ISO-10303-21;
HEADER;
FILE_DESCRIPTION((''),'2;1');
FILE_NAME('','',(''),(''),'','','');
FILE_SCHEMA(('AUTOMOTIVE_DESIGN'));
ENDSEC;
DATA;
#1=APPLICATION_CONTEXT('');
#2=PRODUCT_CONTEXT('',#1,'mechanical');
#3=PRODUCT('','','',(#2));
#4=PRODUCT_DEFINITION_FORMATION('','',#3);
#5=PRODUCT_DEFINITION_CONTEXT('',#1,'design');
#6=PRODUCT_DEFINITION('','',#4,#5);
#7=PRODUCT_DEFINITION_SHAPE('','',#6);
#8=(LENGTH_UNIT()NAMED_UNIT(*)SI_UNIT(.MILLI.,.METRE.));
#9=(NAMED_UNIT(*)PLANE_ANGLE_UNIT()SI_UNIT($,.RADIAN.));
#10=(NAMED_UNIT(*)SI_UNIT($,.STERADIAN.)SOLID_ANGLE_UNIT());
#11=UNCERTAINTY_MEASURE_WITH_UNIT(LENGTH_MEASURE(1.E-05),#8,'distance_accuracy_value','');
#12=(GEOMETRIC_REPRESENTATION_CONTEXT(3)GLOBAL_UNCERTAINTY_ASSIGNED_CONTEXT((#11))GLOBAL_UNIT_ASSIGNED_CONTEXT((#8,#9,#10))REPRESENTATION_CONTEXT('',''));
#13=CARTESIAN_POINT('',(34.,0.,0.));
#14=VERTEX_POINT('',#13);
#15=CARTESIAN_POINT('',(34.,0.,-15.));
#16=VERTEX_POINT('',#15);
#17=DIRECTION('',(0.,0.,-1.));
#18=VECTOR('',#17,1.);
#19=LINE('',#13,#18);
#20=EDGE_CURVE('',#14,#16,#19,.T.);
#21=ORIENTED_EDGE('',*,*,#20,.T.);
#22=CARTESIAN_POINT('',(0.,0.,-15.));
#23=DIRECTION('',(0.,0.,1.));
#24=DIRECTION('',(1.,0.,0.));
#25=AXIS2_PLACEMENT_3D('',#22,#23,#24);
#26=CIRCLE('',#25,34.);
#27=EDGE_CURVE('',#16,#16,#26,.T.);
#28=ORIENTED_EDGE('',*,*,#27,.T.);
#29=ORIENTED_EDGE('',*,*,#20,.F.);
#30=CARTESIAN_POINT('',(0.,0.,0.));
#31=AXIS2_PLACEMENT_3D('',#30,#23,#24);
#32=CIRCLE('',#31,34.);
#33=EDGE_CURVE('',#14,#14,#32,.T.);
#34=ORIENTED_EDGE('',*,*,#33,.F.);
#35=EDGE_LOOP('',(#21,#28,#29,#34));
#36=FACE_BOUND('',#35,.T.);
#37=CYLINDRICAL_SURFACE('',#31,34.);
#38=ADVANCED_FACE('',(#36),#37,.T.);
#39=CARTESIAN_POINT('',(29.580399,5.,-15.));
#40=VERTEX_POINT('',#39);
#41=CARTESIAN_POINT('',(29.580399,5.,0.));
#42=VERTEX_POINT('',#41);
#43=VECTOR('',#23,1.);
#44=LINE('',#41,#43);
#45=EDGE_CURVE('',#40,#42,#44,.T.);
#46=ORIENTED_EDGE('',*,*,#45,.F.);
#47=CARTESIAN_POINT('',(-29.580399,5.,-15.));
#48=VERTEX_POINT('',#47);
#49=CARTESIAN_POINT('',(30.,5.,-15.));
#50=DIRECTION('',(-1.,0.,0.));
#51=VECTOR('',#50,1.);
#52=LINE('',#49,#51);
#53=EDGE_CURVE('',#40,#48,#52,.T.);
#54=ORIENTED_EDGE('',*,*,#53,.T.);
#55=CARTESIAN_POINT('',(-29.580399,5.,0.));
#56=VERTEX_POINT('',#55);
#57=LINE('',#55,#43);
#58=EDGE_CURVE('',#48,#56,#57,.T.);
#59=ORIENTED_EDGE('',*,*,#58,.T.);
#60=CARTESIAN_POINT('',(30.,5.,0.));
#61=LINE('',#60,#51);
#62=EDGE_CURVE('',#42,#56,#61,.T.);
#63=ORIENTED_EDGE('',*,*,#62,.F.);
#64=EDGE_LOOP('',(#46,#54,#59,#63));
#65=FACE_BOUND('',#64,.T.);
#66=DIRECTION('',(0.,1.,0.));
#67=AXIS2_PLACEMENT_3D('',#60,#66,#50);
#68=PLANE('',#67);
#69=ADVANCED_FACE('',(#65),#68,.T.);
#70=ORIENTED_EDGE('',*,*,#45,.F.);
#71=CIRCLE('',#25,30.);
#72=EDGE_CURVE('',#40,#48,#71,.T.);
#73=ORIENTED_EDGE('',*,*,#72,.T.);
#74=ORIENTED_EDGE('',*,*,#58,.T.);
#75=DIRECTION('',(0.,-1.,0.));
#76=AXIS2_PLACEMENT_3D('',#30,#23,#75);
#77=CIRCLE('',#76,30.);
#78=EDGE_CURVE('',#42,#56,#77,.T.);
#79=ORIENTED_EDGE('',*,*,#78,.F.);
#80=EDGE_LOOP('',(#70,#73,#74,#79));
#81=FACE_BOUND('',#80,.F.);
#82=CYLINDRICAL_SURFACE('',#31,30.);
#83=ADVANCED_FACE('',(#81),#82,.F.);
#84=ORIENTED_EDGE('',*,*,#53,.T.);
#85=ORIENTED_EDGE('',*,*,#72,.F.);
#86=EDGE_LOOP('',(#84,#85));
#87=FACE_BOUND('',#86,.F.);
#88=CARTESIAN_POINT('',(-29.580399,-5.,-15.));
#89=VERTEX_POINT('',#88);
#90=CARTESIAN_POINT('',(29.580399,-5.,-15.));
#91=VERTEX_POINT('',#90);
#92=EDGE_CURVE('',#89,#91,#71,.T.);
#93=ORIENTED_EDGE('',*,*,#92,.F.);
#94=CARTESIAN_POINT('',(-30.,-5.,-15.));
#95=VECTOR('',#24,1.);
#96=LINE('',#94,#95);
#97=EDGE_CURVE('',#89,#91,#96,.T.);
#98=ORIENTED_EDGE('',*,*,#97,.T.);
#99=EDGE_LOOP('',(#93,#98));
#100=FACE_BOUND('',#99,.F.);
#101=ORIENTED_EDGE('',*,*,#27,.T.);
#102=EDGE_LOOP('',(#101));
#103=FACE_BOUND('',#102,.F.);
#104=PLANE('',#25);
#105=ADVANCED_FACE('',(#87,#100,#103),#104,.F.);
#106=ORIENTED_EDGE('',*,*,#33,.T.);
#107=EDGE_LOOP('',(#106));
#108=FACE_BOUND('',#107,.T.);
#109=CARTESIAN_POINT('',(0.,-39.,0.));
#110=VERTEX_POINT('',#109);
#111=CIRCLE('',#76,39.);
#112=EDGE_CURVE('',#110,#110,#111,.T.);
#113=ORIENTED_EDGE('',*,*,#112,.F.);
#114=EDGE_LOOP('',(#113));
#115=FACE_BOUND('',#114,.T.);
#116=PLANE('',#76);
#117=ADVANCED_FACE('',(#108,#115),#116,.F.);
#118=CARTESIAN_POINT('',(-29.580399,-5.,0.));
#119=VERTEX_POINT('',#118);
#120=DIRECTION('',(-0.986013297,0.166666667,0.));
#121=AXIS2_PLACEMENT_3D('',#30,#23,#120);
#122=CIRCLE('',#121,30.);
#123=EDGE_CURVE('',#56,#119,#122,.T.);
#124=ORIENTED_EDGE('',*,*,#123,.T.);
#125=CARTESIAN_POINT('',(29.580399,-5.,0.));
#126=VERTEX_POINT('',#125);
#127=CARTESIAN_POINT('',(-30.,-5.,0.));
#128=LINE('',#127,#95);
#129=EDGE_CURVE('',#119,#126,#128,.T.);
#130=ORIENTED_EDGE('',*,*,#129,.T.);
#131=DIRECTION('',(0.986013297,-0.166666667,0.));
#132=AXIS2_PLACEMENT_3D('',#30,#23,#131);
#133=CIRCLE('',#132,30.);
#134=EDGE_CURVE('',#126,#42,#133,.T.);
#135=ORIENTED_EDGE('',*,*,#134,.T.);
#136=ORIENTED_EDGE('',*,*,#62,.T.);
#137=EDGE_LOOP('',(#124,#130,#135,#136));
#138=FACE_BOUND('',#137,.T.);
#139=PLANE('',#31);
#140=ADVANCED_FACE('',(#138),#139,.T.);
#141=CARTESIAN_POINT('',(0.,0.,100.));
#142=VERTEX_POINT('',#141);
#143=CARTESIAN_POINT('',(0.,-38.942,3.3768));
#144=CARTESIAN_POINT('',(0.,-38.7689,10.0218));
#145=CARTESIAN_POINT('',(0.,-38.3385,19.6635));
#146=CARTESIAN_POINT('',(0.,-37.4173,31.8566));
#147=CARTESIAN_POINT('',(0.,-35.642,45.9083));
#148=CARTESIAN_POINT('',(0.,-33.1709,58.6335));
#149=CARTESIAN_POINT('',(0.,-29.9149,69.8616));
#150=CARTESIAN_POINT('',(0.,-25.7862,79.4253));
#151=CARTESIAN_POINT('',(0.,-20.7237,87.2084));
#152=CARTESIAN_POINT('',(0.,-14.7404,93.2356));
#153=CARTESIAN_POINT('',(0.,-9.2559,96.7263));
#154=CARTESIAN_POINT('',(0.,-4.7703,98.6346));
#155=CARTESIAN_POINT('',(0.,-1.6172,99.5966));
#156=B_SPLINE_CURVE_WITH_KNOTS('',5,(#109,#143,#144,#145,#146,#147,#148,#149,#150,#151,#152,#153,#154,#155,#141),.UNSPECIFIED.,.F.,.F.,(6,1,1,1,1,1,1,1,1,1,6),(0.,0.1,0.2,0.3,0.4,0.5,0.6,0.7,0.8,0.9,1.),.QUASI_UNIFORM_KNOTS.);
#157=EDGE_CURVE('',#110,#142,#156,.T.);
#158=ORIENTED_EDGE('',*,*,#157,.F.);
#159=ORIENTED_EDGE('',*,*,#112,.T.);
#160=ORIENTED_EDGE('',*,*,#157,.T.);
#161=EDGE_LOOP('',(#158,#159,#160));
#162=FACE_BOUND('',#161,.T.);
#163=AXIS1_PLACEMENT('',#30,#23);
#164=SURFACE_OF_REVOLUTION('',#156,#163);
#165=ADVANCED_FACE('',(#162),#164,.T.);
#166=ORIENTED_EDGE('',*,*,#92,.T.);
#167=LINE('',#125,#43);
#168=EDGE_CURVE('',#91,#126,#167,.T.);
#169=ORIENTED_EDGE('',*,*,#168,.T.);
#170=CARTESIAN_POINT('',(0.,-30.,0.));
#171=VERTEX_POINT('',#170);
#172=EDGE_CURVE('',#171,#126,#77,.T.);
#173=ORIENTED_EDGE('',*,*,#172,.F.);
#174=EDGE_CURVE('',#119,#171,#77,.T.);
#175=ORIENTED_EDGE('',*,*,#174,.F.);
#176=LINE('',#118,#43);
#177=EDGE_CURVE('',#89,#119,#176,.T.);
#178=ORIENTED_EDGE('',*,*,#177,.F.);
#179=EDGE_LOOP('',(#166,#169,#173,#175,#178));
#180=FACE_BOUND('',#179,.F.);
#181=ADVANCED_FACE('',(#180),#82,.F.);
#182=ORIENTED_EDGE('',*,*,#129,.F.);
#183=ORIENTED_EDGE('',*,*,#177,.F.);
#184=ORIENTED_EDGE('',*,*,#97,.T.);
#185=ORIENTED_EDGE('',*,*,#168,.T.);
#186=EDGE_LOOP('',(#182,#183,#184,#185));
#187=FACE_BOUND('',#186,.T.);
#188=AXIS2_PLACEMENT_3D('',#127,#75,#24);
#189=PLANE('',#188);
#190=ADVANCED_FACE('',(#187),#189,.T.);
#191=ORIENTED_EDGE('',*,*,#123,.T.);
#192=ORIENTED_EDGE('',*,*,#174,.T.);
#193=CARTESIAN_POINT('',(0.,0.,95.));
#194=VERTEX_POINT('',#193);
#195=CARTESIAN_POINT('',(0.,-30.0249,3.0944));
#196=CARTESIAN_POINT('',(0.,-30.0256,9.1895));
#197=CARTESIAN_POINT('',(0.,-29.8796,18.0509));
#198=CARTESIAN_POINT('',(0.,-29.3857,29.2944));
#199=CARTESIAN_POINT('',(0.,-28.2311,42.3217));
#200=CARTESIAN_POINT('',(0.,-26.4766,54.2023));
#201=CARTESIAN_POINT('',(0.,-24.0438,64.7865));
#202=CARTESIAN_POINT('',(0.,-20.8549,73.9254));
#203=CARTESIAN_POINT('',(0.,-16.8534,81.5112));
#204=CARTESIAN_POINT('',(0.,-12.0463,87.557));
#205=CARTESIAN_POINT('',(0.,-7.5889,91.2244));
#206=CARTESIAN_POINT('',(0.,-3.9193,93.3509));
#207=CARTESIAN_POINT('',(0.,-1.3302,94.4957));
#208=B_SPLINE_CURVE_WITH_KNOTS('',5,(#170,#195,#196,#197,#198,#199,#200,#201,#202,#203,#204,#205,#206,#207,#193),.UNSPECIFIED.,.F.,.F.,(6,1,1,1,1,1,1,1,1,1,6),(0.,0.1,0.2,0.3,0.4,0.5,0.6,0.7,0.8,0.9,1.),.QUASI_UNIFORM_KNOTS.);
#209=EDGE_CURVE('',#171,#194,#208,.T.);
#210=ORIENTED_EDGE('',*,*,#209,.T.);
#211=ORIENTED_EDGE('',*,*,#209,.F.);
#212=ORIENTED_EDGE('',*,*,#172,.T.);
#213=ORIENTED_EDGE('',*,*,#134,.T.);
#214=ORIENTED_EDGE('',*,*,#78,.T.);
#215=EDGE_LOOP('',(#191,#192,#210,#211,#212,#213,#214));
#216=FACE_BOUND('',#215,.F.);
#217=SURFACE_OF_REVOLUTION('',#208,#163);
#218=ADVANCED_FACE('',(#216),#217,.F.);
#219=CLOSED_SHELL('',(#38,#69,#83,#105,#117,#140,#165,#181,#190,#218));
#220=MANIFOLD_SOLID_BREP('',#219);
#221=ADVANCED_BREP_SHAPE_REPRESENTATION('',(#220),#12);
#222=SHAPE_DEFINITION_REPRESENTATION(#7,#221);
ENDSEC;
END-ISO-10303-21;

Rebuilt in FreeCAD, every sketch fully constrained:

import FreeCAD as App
import Part
import Sketcher

V = App.Vector


def add_polygon(sketch, points):
    """Adds a closed chain of lines whose ends are joined by coincident constraints."""
    first, n = sketch.GeometryCount, len(points)
    for a, b in zip(points, points[1:] + points[:1]):
        sketch.addGeometry(Part.LineSegment(App.Vector(*a, 0), App.Vector(*b, 0)), False)
    for i in range(n):
        sketch.addConstraint(Sketcher.Constraint("Coincident", first + i, 2, first + (i + 1) % n, 1))

doc = App.newDocument("Part")
body = doc.addObject("PartDesign::Body", "Body")

sketch1 = body.newObject("Sketcher::SketchObject", "Sketch")
sketch1.AttachmentSupport = (doc.getObject("YZ_Plane"), [""])
sketch1.MapMode = "FlatFace"
sketch1.addGeometry([
    Part.BSplineCurve([V(-39, 0, 0), V(-38.942, 3.3768, 0), V(-38.7689, 10.0218, 0), V(-38.3385, 19.6635, 0), V(-37.4173, 31.8566, 0), V(-35.642, 45.9083, 0), V(-33.1709, 58.6335, 0), V(-29.9149, 69.8616, 0), V(-25.7862, 79.4253, 0), V(-20.7237, 87.2084, 0), V(-14.7404, 93.2356, 0), V(-9.2559, 96.7263, 0), V(-4.7703, 98.6346, 0), V(-1.6172, 99.5966, 0), V(0, 100, 0)], [6, 1, 1, 1, 1, 1, 1, 1, 1, 1, 6], [0, 0.1, 0.2, 0.3, 0.4, 0.5, 0.6, 0.7, 0.8, 0.9, 1], False, 5, [1, 1, 1, 1, 1, 1, 1, 1, 1, 1, 1, 1, 1, 1, 1], False),
    Part.LineSegment(V(-39, 0, 0), V(-30, 0, 0)),
    Part.BSplineCurve([V(-30, 0, 0), V(-30.0249, 3.0944, 0), V(-30.0256, 9.1895, 0), V(-29.8796, 18.0509, 0), V(-29.3857, 29.2944, 0), V(-28.2311, 42.3217, 0), V(-26.4766, 54.2023, 0), V(-24.0438, 64.7865, 0), V(-20.8549, 73.9254, 0), V(-16.8534, 81.5112, 0), V(-12.0463, 87.557, 0), V(-7.5889, 91.2244, 0), V(-3.9193, 93.3509, 0), V(-1.3302, 94.4957, 0), V(0, 95, 0)], [6, 1, 1, 1, 1, 1, 1, 1, 1, 1, 6], [0, 0.1, 0.2, 0.3, 0.4, 0.5, 0.6, 0.7, 0.8, 0.9, 1], False, 5, [1, 1, 1, 1, 1, 1, 1, 1, 1, 1, 1, 1, 1, 1, 1], False),
    Part.LineSegment(V(0, 95, 0), V(0, 100, 0)),
], False)
sketch1.addConstraint([
    Sketcher.Constraint("Block", 0),
    Sketcher.Constraint("Block", 2),
    Sketcher.Constraint("Coincident", 0, 1, 1, 1),
    Sketcher.Constraint("Coincident", 1, 2, 2, 1),
    Sketcher.Constraint("Coincident", 2, 2, 3, 1),
    Sketcher.Constraint("Coincident", 3, 2, 0, 2),
])
revolution = body.newObject("PartDesign::Revolution", "Revolution")
revolution.Profile = sketch1
revolution.ReferenceAxis = (sketch1, ["V_Axis"])
revolution.Angle = 360

sketch2 = body.newObject("Sketcher::SketchObject", "Sketch001")
sketch2.AttachmentSupport = (doc.getObject("XY_Plane"), [""])
sketch2.MapMode = "FlatFace"
sketch2.addGeometry([
    Part.Circle(V(0, 0, 0), V(0, 0, 1), 34),
    Part.Circle(V(0, 0, 0), V(0, 0, 1), 30),
], False)
sketch2.addConstraint([
    Sketcher.Constraint("Coincident", 0, 3, -1, 1),
    Sketcher.Constraint("Coincident", 1, 3, -1, 1),
    Sketcher.Constraint("Diameter", 0, 68.0),
    Sketcher.Constraint("Diameter", 1, 60.0),
])
pad1 = body.newObject("PartDesign::Pad", "Pad")
pad1.Profile = sketch2
pad1.Length = 15
pad1.Reversed = True

sketch3 = body.newObject("Sketcher::SketchObject", "Sketch002")
sketch3.AttachmentSupport = (doc.getObject("XY_Plane"), [""])
sketch3.MapMode = "FlatFace"
add_polygon(sketch3, [(-30, 5), (-30, -5), (30, -5), (30, 5)])
sketch3.addConstraint([
    Sketcher.Constraint("Vertical", 0),
    Sketcher.Constraint("Horizontal", 1),
    Sketcher.Constraint("Vertical", 2),
    Sketcher.Constraint("Horizontal", 3),
    Sketcher.Constraint("Symmetric", 0, 2, 2, 2, -1, 1),
    Sketcher.Constraint("DistanceX", 1, 1, 1, 2, 60.0),
    Sketcher.Constraint("DistanceY", 0, 2, 0, 1, 10.0),
])
pad2 = body.newObject("PartDesign::Pad", "Pad001")
pad2.Profile = sketch3
pad2.Length = 15
pad2.Reversed = True

doc.recompute()
